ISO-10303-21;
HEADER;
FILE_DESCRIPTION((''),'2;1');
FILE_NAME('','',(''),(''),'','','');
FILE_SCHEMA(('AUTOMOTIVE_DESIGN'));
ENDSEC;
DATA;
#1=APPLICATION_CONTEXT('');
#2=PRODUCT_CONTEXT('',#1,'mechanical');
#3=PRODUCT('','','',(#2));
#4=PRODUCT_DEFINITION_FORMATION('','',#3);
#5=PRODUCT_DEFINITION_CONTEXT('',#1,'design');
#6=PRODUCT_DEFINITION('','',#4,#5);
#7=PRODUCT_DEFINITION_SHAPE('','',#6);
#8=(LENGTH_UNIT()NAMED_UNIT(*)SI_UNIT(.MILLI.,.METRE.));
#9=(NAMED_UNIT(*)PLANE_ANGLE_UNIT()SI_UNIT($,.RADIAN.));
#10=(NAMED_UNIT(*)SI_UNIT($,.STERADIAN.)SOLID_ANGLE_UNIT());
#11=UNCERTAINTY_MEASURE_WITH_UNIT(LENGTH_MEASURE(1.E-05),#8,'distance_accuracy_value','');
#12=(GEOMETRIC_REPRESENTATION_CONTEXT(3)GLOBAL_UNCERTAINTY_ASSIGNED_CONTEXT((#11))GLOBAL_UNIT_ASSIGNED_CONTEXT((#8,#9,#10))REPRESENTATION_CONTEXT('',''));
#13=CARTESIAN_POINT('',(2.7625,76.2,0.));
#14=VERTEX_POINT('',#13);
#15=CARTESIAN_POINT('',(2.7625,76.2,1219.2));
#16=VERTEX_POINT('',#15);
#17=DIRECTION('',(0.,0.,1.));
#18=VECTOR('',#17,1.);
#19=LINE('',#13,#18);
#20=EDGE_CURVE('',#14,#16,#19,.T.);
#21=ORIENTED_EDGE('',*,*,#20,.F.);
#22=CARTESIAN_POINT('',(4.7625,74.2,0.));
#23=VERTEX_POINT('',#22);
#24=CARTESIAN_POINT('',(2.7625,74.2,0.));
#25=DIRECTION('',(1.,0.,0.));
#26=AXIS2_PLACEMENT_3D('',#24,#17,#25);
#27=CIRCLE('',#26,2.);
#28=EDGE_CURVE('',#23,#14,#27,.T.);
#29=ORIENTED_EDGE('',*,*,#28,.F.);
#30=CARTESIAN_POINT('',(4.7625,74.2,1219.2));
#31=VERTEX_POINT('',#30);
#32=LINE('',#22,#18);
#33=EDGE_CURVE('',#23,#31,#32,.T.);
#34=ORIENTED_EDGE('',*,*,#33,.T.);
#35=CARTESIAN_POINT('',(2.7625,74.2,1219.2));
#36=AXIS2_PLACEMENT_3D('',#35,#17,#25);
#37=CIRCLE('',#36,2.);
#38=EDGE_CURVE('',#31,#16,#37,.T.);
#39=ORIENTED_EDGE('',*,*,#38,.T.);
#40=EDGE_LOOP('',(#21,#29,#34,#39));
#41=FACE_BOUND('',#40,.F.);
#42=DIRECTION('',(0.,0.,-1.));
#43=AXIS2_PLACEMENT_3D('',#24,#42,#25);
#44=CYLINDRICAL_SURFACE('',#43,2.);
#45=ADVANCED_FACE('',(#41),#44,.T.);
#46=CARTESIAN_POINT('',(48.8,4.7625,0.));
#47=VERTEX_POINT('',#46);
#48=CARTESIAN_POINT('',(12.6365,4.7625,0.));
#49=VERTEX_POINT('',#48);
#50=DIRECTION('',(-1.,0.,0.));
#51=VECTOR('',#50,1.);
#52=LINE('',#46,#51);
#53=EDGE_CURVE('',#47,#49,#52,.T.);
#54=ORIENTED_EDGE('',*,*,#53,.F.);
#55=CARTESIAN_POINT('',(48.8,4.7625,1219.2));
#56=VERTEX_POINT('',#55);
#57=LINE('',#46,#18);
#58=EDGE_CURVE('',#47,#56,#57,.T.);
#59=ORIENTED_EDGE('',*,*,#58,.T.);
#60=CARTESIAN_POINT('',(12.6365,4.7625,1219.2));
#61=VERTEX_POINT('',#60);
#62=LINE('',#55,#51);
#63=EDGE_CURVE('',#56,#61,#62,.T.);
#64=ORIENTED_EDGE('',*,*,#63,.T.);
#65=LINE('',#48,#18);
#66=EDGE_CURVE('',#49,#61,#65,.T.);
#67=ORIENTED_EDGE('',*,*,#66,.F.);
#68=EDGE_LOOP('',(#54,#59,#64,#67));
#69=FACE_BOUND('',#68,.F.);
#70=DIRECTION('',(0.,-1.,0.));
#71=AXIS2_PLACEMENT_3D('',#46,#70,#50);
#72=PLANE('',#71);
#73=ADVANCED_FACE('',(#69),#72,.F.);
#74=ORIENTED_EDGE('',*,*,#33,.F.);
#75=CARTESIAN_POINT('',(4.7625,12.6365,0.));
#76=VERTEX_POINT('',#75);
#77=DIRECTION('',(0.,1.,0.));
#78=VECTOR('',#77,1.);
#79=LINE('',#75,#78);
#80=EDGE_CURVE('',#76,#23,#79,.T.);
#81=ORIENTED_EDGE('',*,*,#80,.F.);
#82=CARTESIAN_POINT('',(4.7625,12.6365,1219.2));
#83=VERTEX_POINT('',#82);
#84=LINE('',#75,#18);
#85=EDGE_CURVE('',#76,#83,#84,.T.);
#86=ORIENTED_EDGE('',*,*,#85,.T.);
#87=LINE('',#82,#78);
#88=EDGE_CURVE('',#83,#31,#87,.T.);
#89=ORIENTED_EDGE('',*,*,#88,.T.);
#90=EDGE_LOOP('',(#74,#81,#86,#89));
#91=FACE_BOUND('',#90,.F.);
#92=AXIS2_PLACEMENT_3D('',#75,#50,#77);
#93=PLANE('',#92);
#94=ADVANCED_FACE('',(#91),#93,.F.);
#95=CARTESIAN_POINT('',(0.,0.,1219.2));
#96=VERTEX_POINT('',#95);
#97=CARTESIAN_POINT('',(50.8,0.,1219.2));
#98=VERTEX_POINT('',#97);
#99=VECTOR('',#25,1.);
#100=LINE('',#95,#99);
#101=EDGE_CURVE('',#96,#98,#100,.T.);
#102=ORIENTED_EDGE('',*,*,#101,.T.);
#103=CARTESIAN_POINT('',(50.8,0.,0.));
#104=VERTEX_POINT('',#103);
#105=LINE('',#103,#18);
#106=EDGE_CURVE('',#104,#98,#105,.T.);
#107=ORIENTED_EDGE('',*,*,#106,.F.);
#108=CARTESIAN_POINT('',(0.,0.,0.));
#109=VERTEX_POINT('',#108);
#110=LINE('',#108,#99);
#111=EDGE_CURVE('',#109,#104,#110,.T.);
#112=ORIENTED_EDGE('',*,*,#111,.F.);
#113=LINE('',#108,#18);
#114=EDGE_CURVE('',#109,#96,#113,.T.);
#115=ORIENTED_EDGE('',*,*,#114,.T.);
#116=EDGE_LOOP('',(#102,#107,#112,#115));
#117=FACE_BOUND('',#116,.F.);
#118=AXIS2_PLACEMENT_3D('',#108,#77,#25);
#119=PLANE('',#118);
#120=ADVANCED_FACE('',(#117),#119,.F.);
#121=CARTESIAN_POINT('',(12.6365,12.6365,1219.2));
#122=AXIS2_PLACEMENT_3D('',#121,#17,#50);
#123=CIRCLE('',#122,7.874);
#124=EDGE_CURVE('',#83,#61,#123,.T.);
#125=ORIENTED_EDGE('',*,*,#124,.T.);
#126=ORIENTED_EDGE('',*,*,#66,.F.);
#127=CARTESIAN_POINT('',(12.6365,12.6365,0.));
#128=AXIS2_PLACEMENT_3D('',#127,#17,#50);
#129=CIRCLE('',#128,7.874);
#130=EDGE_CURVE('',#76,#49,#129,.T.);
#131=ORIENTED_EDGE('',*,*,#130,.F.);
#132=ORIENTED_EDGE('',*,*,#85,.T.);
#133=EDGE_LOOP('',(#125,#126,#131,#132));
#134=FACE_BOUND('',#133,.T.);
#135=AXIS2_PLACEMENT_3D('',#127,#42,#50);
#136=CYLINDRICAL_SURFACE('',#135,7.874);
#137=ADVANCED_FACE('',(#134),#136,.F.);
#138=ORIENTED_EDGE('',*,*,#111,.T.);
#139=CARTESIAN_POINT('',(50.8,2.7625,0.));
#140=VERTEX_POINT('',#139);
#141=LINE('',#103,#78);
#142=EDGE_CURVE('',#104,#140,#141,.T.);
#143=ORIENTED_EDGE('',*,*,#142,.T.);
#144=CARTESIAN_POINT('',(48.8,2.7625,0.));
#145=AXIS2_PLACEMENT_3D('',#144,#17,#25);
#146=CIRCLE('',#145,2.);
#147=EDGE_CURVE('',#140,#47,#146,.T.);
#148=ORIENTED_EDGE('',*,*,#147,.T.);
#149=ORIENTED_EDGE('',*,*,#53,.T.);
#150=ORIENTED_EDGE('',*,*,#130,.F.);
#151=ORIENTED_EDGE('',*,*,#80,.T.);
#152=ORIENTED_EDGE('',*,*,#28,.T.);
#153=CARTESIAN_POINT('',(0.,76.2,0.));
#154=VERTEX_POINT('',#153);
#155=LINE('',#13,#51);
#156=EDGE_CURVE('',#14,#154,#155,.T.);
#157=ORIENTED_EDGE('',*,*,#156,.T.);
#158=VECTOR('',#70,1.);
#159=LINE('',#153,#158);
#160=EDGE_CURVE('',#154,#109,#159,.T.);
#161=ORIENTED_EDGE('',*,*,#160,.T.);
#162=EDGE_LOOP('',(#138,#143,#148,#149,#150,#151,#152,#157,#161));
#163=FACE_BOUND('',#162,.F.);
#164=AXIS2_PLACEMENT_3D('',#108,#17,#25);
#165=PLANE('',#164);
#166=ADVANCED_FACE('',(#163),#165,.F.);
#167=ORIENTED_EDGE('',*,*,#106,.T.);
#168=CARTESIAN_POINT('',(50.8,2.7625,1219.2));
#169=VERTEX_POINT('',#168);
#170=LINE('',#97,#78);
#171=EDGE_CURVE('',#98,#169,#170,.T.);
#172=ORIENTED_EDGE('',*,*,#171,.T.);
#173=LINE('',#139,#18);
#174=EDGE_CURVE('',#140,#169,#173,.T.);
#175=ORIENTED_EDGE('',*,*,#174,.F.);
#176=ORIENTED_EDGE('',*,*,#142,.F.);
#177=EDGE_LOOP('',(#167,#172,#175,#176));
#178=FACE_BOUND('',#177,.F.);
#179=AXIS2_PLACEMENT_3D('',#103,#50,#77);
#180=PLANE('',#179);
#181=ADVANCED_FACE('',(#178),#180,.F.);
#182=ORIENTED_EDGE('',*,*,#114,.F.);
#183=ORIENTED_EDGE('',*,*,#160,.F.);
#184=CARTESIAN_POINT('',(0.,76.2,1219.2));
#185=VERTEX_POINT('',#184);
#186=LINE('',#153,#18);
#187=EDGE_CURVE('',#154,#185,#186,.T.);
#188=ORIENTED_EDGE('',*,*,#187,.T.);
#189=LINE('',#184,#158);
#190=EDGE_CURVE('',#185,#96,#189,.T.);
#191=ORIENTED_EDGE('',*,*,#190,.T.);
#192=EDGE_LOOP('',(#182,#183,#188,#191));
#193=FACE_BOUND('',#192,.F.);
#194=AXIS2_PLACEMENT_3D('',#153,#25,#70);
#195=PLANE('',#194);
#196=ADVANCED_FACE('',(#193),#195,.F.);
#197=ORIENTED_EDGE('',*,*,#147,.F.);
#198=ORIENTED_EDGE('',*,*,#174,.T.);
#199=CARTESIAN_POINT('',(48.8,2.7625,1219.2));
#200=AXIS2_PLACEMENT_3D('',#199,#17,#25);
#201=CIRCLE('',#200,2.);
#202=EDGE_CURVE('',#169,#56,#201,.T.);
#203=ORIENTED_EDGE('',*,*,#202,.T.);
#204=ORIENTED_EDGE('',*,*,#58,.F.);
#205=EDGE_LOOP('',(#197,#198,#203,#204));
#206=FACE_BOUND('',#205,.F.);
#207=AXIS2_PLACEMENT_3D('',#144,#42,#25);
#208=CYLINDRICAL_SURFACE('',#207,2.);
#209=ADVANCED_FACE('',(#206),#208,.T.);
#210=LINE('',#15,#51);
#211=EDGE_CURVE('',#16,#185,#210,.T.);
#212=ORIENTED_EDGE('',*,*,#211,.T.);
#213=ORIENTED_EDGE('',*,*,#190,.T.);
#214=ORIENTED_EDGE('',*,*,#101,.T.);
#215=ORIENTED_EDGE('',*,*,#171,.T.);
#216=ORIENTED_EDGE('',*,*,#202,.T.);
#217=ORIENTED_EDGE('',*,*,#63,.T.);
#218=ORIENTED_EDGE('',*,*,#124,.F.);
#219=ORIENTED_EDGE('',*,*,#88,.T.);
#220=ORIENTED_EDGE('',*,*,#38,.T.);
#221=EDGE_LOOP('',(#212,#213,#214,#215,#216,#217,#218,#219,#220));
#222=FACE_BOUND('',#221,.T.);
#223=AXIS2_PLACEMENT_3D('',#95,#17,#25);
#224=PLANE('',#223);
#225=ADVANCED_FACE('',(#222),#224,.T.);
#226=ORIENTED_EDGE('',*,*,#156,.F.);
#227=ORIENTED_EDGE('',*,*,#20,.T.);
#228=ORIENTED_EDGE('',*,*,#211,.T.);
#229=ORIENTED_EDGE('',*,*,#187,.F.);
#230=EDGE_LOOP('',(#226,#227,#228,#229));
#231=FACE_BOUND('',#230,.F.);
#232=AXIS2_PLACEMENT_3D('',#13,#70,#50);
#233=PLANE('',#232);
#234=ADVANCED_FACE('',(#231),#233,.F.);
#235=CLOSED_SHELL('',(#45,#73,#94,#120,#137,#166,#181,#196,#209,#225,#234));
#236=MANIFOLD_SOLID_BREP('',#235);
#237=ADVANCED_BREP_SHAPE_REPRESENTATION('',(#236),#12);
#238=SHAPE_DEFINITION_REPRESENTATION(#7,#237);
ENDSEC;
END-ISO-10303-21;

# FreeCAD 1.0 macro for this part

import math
import FreeCAD as App
import Part
import Sketcher

V = App.Vector
Q = App.Units.Quantity

doc = App.newDocument("Part")
body = doc.addObject("PartDesign::Body", "Body")

# Sketch on XY plane
sketch1 = doc.addObject("Sketcher::SketchObject", "Sketch")
body.addObject(sketch1)
sketch1.AttachmentSupport = (doc.XY_Plane, [""])
sketch1.MapMode = "FlatFace"
sketch1.addGeometry(Part.LineSegment(V(2.8, 76.2, 0), V(0, 76.2, 0)), False)
sketch1.addGeometry(Part.LineSegment(V(0, 76.2, 0), V(0, 0, 0)), False)
sketch1.addGeometry(Part.LineSegment(V(0, 0, 0), V(50.8, 0, 0)), False)
sketch1.addGeometry(Part.LineSegment(V(50.8, 0, 0), V(50.8, 2.8, 0)), False)
sketch1.addGeometry(Part.ArcOfCircle(Part.Circle(V(48.8, 2.8, 0), V(0, 0, 1), 2), math.radians(0), math.radians(90)), False)
sketch1.addGeometry(Part.LineSegment(V(48.8, 4.8, 0), V(12.6, 4.8, 0)), False)
sketch1.addGeometry(Part.ArcOfCircle(Part.Circle(V(12.6, 12.6, 0), V(0, 0, 1), 7.9), math.radians(180), math.radians(270)), False)
sketch1.addGeometry(Part.LineSegment(V(4.8, 12.6, 0), V(4.8, 74.2, 0)), False)
sketch1.addGeometry(Part.ArcOfCircle(Part.Circle(V(2.8, 74.2, 0), V(0, 0, 1), 2), math.radians(0), math.radians(90)), False)
sketch1.addConstraint(Sketcher.Constraint("Coincident", 0, 2, 1, 1))
sketch1.addConstraint(Sketcher.Constraint("Coincident", 1, 2, 2, 1))
sketch1.addConstraint(Sketcher.Constraint("Coincident", 2, 2, 3, 1))
sketch1.addConstraint(Sketcher.Constraint("Tangent", 3, 2, 4, 1))
sketch1.addConstraint(Sketcher.Constraint("Tangent", 4, 2, 5, 1))
sketch1.addConstraint(Sketcher.Constraint("Tangent", 5, 2, 6, 2))
sketch1.addConstraint(Sketcher.Constraint("Tangent", 6, 1, 7, 1))
sketch1.addConstraint(Sketcher.Constraint("Tangent", 7, 2, 8, 1))
sketch1.addConstraint(Sketcher.Constraint("Tangent", 8, 2, 0, 1))
sketch1.addConstraint(Sketcher.Constraint("Horizontal", 0))
sketch1.addConstraint(Sketcher.Constraint("Vertical", 1))
sketch1.addConstraint(Sketcher.Constraint("Horizontal", 2))
sketch1.addConstraint(Sketcher.Constraint("Vertical", 3))
sketch1.addConstraint(Sketcher.Constraint("Horizontal", 5))
sketch1.addConstraint(Sketcher.Constraint("Vertical", 7))
sketch1.addConstraint(Sketcher.Constraint("Coincident", 1, 2, -1, 1))
sketch1.addConstraint(Sketcher.Constraint("Equal", 4, 8))
sketch1.addConstraint(Sketcher.Constraint("Equal", 0, 3))
sketch1.addConstraint(Sketcher.Constraint("DistanceX", 2, 1, 2, 2, Q("2 in")))
sketch1.addConstraint(Sketcher.Constraint("DistanceY", 1, 2, 1, 1, Q("3 in")))
sketch1.addConstraint(Sketcher.Constraint("Radius", 6, Q("0.31 in")))
sketch1.addConstraint(Sketcher.Constraint("Radius", 4, 2.0))
sketch1.addConstraint(Sketcher.Constraint("DistanceY", -1, 1, 4, 2, Q("0.1875 in")))
pad1 = doc.addObject("PartDesign::Pad", "Pad")
body.addObject(pad1)
pad1.Profile = sketch1
pad1.Length = Q("48 in")

doc.recompute()
